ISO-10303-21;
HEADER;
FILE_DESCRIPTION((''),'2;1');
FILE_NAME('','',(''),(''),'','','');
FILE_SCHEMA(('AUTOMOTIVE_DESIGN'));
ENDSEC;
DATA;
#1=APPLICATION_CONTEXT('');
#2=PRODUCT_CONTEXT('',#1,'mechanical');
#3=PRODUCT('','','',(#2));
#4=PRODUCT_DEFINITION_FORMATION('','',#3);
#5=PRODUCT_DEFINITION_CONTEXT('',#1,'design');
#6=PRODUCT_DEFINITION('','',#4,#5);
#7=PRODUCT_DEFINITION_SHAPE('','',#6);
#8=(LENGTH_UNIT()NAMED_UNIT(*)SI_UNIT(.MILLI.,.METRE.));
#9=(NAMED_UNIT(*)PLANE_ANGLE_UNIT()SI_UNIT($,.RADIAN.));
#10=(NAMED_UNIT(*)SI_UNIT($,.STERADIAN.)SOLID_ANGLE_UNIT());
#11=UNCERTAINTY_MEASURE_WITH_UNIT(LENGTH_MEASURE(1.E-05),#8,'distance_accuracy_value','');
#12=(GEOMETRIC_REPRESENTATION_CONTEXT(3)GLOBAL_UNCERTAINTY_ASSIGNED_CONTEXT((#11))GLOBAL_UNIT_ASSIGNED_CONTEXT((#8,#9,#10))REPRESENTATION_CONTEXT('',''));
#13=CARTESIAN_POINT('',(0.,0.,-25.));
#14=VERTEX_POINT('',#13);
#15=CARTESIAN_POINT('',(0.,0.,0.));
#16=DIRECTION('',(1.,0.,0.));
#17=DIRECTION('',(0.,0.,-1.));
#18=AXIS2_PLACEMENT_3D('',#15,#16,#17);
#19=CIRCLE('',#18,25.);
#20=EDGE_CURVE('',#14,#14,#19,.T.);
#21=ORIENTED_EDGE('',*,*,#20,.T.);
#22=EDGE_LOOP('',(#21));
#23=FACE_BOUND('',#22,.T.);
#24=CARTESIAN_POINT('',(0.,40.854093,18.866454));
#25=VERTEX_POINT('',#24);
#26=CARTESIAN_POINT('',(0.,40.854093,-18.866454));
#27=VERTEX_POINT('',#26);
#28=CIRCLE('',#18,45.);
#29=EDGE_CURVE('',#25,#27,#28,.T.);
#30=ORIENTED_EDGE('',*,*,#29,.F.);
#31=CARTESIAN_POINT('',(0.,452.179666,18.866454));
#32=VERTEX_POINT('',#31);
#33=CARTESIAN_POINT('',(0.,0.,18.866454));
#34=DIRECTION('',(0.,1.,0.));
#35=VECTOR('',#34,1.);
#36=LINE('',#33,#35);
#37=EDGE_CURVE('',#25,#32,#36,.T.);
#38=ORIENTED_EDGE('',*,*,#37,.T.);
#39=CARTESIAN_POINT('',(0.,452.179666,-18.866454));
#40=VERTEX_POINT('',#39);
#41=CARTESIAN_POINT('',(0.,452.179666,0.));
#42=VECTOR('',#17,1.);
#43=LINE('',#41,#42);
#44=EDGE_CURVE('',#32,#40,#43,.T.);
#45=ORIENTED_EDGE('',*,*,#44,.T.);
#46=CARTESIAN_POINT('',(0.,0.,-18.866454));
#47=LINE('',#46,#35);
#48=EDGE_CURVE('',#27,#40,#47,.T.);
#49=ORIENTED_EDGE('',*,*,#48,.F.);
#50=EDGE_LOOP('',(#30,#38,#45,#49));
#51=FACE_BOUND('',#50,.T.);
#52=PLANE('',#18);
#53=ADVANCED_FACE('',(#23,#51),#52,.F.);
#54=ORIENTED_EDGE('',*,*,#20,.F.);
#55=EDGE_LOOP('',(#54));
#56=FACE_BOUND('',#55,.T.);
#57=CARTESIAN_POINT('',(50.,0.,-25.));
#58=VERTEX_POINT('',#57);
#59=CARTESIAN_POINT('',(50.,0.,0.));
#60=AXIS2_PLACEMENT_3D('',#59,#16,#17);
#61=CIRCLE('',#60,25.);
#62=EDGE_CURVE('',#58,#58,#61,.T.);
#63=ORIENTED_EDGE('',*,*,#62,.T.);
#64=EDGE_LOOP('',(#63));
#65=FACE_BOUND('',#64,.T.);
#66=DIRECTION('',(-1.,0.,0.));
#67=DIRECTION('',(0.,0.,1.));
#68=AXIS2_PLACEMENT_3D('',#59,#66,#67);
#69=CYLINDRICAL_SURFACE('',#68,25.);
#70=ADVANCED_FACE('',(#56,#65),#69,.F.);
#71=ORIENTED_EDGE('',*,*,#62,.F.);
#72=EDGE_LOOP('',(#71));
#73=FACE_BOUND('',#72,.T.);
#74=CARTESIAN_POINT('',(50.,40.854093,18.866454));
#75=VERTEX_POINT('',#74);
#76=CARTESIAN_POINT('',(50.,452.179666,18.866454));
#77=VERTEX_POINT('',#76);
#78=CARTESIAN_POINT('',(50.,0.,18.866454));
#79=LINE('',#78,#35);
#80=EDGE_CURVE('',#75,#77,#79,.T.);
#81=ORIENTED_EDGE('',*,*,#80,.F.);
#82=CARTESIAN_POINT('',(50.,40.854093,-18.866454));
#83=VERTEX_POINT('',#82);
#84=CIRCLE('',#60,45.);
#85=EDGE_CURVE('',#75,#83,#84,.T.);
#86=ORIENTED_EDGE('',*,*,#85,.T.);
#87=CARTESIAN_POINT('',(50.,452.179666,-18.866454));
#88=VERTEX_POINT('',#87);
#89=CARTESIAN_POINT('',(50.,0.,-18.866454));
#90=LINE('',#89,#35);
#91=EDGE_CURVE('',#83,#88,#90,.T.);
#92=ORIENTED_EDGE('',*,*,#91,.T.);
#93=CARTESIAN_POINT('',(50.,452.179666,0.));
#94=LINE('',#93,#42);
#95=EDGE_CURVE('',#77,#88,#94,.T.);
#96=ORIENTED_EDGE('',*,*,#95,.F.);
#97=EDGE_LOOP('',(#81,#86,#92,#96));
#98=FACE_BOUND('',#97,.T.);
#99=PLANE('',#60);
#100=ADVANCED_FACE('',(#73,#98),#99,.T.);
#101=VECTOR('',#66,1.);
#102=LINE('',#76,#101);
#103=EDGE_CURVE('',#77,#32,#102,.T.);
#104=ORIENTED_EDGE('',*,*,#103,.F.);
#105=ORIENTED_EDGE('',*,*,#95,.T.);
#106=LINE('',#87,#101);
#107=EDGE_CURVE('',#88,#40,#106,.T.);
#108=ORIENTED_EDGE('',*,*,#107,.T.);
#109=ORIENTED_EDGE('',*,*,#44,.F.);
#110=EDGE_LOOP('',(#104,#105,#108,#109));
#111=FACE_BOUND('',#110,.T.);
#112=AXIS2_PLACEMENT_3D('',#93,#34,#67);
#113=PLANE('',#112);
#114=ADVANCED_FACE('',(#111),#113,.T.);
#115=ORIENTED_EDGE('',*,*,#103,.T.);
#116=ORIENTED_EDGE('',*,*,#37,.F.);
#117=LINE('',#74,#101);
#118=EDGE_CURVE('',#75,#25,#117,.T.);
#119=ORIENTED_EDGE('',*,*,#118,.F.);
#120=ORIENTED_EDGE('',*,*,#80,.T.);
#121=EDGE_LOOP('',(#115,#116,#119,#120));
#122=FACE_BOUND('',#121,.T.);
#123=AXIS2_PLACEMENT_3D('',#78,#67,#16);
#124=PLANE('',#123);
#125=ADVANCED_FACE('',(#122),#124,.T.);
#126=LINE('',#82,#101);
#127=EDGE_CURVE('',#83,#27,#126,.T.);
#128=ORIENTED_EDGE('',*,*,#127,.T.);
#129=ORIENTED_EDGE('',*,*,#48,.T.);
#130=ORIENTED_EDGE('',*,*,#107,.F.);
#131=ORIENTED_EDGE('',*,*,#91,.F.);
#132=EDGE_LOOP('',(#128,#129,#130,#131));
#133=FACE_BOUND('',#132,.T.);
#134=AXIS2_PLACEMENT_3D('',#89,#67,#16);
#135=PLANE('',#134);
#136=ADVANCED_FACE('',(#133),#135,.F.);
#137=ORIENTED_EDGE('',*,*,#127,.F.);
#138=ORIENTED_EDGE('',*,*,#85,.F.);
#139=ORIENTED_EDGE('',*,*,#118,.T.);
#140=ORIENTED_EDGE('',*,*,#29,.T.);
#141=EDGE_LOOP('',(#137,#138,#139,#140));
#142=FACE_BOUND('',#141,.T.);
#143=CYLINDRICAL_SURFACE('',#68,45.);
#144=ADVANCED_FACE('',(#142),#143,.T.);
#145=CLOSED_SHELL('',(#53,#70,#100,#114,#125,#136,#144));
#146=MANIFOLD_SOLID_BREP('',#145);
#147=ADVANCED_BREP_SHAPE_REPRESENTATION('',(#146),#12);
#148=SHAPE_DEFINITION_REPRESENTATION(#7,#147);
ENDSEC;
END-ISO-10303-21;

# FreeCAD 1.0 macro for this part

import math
import FreeCAD as App
import Part
import Sketcher
Q = App.Units.Quantity

doc = App.newDocument("Part")
body = doc.addObject("PartDesign::Body", "Body")

# Sketch on YZ plane
sketch1 = body.newObject("Sketcher::SketchObject", "Sketch")
sketch1.AttachmentSupport = (doc.getObject("YZ_Plane"), [""])
sketch1.MapMode = "FlatFace"
sketch1.addGeometry([
    Part.LineSegment(App.Vector(452, 19, 0), App.Vector(41, 19, 0)),  # 0
    Part.ArcOfCircle(Part.Circle(App.Vector(0, 0, 0), App.Vector(0, 0, 1), 45), math.radians(25), math.radians(335)),  # 1
    Part.LineSegment(App.Vector(41, -19, 0), App.Vector(452, -19, 0)),  # 2
    Part.LineSegment(App.Vector(452, -19, 0), App.Vector(452, 19, 0)),  # 3
    Part.Circle(App.Vector(0, 0, 0), App.Vector(0, 0, 1), 25),  # 4
], False)
sketch1.addConstraint([
    Sketcher.Constraint("Coincident", 0, 2, 1, 1),
    Sketcher.Constraint("Coincident", 1, 2, 2, 1),
    Sketcher.Constraint("Coincident", 2, 2, 3, 1),
    Sketcher.Constraint("Coincident", 3, 2, 0, 1),
    Sketcher.Constraint("Horizontal", 0),
    Sketcher.Constraint("Horizontal", 2),
    Sketcher.Constraint("Vertical", 3),
    Sketcher.Constraint("Coincident", 1, 3, -1, 1),
    Sketcher.Constraint("Coincident", 4, 3, -1, 1),
    Sketcher.Constraint("Vertical", 0, 2, 1, 2),
    Sketcher.Constraint("Diameter", 4, Q("50 mm")),
    Sketcher.Constraint("Radius", 1, Q("45 mm")),
    Sketcher.Constraint("DistanceY", 3, 1, 3, 2, Q("37.732908 mm")),
    Sketcher.Constraint("DistanceX", 0, 2, 0, 1, Q("411.325573 mm")),
])
pad1 = body.newObject("PartDesign::Pad", "Pad")
pad1.Profile = sketch1
pad1.Length = 50

doc.recompute()
